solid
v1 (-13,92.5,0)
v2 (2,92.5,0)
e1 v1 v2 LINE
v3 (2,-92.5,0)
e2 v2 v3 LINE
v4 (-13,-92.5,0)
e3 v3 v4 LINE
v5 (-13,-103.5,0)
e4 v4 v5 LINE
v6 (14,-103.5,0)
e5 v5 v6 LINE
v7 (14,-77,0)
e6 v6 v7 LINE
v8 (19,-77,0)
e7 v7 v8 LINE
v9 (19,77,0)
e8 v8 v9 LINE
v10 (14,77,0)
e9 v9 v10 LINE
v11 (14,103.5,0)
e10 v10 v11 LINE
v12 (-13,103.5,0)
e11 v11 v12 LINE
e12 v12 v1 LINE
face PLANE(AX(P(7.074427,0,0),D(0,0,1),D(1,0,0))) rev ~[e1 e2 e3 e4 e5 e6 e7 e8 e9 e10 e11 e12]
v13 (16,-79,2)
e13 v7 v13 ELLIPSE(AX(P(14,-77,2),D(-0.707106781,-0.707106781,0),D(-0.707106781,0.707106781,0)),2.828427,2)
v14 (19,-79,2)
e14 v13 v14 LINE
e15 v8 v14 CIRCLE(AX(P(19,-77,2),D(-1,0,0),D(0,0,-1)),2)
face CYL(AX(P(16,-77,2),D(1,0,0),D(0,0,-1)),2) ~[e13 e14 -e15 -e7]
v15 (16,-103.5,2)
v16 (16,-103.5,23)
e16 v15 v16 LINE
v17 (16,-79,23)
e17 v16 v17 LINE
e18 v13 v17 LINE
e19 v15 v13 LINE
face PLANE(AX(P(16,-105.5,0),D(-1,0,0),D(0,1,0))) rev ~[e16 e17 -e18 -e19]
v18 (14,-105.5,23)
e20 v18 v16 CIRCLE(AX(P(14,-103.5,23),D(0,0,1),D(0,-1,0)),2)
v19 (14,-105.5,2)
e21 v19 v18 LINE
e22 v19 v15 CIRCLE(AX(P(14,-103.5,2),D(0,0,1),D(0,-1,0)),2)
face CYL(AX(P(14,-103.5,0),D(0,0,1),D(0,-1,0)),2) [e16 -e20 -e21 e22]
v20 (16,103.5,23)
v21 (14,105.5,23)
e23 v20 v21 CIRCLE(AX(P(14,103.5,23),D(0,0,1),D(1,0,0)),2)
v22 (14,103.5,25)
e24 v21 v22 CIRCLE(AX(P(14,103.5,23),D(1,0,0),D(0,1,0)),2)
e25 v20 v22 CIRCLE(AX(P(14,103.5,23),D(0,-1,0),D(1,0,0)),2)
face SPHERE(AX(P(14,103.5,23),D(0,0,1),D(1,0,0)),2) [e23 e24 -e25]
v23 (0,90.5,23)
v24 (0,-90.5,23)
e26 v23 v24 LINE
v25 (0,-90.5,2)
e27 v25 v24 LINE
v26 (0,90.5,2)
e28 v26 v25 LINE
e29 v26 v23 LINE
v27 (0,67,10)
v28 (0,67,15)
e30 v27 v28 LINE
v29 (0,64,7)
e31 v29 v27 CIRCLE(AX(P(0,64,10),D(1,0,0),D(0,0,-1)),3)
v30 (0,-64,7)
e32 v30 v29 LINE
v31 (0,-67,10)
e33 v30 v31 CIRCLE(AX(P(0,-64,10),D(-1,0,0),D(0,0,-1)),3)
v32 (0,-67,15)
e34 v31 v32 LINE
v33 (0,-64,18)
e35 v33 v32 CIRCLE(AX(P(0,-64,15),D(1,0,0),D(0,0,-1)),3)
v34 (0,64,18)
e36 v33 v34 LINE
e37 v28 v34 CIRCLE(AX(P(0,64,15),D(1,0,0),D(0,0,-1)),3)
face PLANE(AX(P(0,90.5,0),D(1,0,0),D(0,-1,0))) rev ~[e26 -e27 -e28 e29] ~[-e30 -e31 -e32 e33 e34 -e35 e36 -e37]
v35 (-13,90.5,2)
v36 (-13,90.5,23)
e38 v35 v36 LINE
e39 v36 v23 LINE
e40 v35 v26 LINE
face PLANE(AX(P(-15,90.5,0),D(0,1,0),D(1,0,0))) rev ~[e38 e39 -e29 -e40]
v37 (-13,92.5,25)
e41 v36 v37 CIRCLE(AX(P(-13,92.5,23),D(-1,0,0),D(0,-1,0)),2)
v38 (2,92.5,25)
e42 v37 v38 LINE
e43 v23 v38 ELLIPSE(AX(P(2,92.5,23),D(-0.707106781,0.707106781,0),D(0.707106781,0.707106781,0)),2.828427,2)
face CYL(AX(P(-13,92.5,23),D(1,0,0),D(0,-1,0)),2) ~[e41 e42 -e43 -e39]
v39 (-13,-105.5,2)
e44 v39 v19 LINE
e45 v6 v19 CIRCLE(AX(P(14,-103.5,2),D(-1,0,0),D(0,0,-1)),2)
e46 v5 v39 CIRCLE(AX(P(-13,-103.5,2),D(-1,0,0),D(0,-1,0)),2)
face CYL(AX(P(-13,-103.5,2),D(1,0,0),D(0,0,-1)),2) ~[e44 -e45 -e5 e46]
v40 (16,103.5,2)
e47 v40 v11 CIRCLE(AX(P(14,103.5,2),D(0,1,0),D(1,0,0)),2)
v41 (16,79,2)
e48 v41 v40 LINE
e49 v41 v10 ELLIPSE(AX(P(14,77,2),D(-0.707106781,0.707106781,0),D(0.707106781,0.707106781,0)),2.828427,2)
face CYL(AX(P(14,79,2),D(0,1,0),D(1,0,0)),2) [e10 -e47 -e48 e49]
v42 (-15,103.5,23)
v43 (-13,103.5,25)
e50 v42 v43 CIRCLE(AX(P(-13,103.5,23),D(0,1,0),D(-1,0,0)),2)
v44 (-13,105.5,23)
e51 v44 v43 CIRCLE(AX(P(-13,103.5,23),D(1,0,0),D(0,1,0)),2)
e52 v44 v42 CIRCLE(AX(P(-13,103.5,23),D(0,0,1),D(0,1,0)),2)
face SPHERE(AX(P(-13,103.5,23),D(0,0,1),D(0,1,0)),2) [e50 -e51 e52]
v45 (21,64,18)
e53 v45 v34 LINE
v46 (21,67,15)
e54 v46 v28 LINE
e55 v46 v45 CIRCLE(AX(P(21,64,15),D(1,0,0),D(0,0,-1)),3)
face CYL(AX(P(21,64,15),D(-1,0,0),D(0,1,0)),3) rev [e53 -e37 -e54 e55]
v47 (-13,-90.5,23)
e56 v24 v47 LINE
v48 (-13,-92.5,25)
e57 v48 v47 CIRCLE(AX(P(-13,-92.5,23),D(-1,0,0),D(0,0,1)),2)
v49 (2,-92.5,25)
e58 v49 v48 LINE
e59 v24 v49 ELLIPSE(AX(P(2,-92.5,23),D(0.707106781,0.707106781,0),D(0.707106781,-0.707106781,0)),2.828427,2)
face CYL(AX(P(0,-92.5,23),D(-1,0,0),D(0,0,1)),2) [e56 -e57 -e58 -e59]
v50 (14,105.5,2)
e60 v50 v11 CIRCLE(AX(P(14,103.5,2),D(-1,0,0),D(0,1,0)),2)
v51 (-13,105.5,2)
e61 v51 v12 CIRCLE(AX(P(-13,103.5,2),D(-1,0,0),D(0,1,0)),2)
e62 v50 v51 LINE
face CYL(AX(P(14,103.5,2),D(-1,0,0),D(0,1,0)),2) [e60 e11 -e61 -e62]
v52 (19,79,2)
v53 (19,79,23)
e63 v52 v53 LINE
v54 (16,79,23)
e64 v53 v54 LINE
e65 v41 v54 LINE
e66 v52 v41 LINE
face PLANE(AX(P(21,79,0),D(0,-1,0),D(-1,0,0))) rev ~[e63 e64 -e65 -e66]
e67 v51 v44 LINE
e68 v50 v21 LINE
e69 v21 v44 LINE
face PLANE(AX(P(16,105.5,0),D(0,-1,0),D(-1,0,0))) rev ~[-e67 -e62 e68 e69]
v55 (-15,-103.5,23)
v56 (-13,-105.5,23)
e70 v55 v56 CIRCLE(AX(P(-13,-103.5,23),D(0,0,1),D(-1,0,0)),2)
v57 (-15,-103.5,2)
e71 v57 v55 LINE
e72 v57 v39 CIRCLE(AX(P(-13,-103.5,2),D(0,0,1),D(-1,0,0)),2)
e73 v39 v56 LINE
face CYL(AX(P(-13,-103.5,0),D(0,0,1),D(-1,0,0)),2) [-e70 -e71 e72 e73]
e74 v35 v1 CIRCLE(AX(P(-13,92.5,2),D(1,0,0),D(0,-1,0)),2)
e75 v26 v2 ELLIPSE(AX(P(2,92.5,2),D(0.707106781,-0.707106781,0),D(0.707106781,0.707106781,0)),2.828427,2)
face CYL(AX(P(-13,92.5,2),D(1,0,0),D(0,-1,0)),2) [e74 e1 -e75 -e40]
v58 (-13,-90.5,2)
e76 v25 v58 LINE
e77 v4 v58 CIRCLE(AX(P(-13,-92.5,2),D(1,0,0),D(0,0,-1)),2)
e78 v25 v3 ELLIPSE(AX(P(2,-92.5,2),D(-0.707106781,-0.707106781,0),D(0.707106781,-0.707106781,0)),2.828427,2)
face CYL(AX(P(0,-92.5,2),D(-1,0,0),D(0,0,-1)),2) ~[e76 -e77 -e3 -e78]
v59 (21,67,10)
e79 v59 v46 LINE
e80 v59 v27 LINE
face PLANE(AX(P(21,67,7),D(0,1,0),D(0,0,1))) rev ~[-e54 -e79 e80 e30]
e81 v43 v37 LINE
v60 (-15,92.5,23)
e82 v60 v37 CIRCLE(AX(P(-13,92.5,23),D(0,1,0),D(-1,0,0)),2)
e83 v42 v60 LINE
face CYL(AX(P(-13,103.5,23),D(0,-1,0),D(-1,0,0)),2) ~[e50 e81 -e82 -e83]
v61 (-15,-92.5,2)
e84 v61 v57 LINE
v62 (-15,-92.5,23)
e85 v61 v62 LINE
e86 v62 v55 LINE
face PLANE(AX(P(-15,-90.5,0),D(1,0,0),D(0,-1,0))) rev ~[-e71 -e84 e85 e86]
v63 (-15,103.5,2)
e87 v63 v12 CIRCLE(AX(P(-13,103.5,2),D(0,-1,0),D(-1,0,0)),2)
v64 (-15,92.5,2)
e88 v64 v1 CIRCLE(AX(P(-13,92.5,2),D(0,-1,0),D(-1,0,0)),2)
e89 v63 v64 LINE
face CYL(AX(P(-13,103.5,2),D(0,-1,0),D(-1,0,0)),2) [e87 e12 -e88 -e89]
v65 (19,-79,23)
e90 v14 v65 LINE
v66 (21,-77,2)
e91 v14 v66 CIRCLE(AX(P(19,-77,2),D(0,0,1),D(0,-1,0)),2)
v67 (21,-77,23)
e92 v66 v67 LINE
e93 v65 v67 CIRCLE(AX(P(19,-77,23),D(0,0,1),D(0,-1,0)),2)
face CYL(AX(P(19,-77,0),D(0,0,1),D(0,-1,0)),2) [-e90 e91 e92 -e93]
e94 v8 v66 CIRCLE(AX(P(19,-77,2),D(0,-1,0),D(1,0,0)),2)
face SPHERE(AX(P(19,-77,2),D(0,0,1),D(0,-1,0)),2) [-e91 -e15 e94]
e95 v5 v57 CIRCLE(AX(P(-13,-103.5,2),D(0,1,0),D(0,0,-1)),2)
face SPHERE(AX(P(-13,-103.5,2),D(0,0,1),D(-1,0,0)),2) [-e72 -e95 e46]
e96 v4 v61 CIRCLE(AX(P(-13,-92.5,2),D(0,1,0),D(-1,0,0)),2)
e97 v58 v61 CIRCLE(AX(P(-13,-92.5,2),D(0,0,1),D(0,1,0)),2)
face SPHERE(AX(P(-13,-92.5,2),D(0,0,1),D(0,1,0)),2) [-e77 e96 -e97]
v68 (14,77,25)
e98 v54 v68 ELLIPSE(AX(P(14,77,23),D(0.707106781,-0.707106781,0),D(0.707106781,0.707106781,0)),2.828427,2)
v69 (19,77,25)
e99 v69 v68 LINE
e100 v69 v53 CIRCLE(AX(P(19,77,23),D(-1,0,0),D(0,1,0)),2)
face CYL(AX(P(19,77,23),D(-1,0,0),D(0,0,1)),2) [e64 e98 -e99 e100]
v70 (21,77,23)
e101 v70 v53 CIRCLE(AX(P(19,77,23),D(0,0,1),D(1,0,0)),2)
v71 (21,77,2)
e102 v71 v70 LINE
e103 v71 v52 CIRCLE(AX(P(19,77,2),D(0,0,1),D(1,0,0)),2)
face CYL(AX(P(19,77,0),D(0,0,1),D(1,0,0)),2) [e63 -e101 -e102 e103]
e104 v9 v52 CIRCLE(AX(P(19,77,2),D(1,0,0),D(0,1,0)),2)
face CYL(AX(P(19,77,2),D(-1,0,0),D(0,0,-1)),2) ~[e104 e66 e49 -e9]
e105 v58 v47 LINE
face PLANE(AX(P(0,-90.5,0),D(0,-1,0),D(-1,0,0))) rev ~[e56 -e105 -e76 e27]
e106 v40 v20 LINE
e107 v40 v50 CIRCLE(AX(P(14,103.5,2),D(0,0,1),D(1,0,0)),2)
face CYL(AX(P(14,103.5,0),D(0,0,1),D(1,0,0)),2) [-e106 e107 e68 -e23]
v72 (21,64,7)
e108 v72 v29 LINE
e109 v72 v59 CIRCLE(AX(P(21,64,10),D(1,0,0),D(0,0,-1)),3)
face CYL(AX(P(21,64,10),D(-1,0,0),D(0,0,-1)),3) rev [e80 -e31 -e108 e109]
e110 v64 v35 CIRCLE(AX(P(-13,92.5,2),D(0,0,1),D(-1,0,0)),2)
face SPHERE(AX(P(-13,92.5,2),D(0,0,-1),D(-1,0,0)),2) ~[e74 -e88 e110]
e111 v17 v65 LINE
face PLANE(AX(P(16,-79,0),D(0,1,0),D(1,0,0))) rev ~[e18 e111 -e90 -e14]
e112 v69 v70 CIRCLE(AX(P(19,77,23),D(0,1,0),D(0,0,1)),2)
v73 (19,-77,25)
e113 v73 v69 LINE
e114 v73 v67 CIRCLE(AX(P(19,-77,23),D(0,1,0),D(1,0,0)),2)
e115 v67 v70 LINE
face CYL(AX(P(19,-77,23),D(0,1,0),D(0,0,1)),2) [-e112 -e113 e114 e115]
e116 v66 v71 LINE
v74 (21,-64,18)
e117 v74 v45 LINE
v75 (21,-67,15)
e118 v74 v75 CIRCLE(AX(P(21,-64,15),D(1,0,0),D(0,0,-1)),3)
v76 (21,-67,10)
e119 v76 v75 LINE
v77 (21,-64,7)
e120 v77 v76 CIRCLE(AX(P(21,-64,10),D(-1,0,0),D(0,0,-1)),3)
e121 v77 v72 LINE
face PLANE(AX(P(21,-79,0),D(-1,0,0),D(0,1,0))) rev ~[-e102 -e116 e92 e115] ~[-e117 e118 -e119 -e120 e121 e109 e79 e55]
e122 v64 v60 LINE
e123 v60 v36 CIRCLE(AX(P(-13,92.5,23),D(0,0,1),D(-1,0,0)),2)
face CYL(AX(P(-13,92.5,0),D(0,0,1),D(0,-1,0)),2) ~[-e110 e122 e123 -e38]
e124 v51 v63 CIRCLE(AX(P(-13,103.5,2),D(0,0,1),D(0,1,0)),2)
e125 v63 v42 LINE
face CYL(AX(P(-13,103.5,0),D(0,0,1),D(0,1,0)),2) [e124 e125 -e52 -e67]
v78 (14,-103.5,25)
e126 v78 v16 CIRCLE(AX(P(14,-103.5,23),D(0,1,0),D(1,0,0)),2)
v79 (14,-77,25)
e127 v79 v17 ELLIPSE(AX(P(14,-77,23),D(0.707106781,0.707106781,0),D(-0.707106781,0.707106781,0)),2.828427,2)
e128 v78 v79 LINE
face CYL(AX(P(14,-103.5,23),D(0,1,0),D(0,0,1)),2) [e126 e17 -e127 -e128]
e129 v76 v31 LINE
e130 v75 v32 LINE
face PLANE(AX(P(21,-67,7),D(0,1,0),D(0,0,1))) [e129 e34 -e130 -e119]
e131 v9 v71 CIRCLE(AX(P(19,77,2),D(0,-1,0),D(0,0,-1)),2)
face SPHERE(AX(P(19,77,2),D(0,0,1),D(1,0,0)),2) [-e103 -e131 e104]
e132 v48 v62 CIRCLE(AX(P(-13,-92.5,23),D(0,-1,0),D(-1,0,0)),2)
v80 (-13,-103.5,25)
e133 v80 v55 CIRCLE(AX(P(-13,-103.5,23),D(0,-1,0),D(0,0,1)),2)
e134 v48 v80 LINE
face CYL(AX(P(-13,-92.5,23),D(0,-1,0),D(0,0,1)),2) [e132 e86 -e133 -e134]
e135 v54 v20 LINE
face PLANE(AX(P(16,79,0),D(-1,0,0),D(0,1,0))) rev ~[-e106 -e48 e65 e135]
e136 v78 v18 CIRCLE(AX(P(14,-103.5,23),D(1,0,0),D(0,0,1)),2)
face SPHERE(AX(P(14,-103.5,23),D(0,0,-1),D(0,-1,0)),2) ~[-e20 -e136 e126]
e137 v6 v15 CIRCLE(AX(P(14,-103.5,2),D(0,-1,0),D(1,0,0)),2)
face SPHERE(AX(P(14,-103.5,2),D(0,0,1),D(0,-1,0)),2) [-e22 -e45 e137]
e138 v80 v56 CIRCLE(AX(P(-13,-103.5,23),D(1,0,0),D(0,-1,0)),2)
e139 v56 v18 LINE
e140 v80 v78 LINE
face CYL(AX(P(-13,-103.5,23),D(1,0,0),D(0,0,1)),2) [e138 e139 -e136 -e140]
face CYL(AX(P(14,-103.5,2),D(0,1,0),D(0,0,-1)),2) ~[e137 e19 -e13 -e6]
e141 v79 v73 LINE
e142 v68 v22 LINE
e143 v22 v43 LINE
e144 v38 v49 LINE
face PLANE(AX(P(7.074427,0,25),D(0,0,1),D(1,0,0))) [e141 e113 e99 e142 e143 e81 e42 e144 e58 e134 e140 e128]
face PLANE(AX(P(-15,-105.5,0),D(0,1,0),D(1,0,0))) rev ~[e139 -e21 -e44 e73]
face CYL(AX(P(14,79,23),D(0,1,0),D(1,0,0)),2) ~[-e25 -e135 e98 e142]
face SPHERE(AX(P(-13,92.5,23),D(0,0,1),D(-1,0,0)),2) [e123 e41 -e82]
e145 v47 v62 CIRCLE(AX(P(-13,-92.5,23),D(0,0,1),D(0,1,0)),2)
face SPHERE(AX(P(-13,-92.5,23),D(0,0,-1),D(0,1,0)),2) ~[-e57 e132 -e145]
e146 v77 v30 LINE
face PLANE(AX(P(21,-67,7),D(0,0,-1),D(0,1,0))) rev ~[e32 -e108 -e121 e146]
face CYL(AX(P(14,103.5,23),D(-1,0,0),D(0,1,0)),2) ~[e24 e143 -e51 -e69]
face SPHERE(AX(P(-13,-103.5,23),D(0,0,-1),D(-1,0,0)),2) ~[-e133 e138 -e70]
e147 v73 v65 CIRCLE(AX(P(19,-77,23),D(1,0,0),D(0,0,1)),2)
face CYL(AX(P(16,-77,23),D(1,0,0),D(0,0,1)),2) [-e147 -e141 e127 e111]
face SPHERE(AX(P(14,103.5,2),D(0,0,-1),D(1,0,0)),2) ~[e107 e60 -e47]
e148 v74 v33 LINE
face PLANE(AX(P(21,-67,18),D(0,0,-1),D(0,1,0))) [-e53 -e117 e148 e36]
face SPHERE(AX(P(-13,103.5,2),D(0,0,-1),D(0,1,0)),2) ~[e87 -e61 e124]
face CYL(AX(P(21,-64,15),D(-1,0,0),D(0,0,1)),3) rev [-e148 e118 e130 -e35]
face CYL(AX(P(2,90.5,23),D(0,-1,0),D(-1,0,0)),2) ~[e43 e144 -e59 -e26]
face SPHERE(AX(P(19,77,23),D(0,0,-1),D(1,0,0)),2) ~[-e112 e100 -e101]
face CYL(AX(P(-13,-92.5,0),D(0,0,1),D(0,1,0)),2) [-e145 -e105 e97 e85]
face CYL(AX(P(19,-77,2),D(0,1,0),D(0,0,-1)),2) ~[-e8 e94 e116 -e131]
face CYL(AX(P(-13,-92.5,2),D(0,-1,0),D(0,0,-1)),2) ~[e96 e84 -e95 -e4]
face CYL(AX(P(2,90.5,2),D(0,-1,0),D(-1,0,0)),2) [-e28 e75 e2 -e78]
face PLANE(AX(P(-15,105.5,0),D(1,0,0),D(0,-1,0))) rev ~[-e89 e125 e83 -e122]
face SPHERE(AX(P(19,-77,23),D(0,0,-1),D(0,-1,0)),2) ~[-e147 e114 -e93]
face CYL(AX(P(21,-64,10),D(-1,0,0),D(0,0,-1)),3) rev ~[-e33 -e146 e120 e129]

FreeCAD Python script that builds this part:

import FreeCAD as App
import Part
import Sketcher
from FreeCAD import Vector
Q = App.Units.Quantity


def edges_at(feature, points):
    """Names of the edges that pass closest to the given points."""
    edges = feature.Shape.Edges
    near = lambda p: min(range(len(edges)), key=lambda i: edges[i].distToShape(Part.Vertex(*p))[0])
    return sorted({f"Edge{near(p) + 1}" for p in points})

doc = App.newDocument("Part")
body = doc.addObject("PartDesign::Body", "Body")

sketch1 = body.newObject("Sketcher::SketchObject", "Sketch")
sketch1.AttachmentSupport = (doc.getObject("XY_Plane"), [""])
sketch1.MapMode = "FlatFace"
sketch1.addGeometry([
    Part.LineSegment(Vector(-15, 90, 0), Vector(0, 90, 0)),
    Part.LineSegment(Vector(0, 90, 0), Vector(0, -90, 0)),
    Part.LineSegment(Vector(0, -90, 0), Vector(-15, -90, 0)),
    Part.LineSegment(Vector(-15, -90, 0), Vector(-15, -106, 0)),
    Part.LineSegment(Vector(-15, -106, 0), Vector(16, -106, 0)),
    Part.LineSegment(Vector(16, -106, 0), Vector(16, -79, 0)),
    Part.LineSegment(Vector(16, -79, 0), Vector(21, -79, 0)),
    Part.LineSegment(Vector(21, -79, 0), Vector(21, 79, 0)),
    Part.LineSegment(Vector(21, 79, 0), Vector(16, 79, 0)),
    Part.LineSegment(Vector(16, 79, 0), Vector(16, 106, 0)),
    Part.LineSegment(Vector(16, 106, 0), Vector(-15, 106, 0)),
    Part.LineSegment(Vector(-15, 106, 0), Vector(-15, 90, 0)),
], False)
sketch1.addConstraint([
    Sketcher.Constraint("Coincident", 0, 2, 1, 1),
    Sketcher.Constraint("Coincident", 1, 2, 2, 1),
    Sketcher.Constraint("Coincident", 2, 2, 3, 1),
    Sketcher.Constraint("Coincident", 3, 2, 4, 1),
    Sketcher.Constraint("Coincident", 4, 2, 5, 1),
    Sketcher.Constraint("Coincident", 5, 2, 6, 1),
    Sketcher.Constraint("Coincident", 6, 2, 7, 1),
    Sketcher.Constraint("Coincident", 7, 2, 8, 1),
    Sketcher.Constraint("Coincident", 8, 2, 9, 1),
    Sketcher.Constraint("Coincident", 9, 2, 10, 1),
    Sketcher.Constraint("Coincident", 10, 2, 11, 1),
    Sketcher.Constraint("Coincident", 11, 2, 0, 1),
    Sketcher.Constraint("Horizontal", 0),
    Sketcher.Constraint("Vertical", 1),
    Sketcher.Constraint("Horizontal", 2),
    Sketcher.Constraint("Vertical", 3),
    Sketcher.Constraint("Horizontal", 4),
    Sketcher.Constraint("Vertical", 5),
    Sketcher.Constraint("Horizontal", 6),
    Sketcher.Constraint("Vertical", 7),
    Sketcher.Constraint("Horizontal", 8),
    Sketcher.Constraint("Vertical", 9),
    Sketcher.Constraint("Horizontal", 10),
    Sketcher.Constraint("Vertical", 11),
    Sketcher.Constraint("Symmetric", 0, 2, 1, 2, -1, 1),
    Sketcher.Constraint("Symmetric", 5, 2, 8, 2, -1),
    Sketcher.Constraint("Symmetric", 3, 2, 10, 2, -1),
    Sketcher.Constraint("Equal", 2, 3),
    Sketcher.Constraint("DistanceX", 0, 1, 0, 2, Q("15 mm")),
    Sketcher.Constraint("DistanceX", 4, 1, 4, 2, Q("31 mm")),
    Sketcher.Constraint("DistanceX", 6, 1, 6, 2, Q("5 mm")),
    Sketcher.Constraint("DistanceY", 1, 2, 1, 1, Q("181 mm")),
    Sketcher.Constraint("DistanceY", 7, 1, 7, 2, Q("158 mm")),
])
pad1 = body.newObject("PartDesign::Pad", "Pad")
pad1.Profile = sketch1
pad1.Length = 25
doc.recompute()

fillet = body.newObject("PartDesign::Fillet", "Fillet")
fillet.Base = (pad1, edges_at(pad1, [
    (-15, -105.5, 12.5),
    (-15, 105.5, 12.5),
    (-15, 90.5, 12.5),
    (-15, -90.5, 12.5),
    (16, -105.5, 12.5),
    (21, -79, 12.5),
    (21, 79, 12.5),
    (16, 105.5, 12.5),
]))
fillet.Radius = 2

sketch2 = body.newObject("Sketcher::SketchObject", "Sketch001")
sketch2.AttachmentSupport = (doc.getObject("YZ_Plane"), [""])
sketch2.MapMode = "FlatFace"
sketch2.AttachmentOffset = App.Placement(Vector(0, 0, 21), App.Rotation())
sketch2.addGeometry([
    Part.LineSegment(Vector(-67, 18, 0), Vector(-67, 7, 0)),
    Part.LineSegment(Vector(-67, 7, 0), Vector(67, 7, 0)),
    Part.LineSegment(Vector(67, 7, 0), Vector(67, 18, 0)),
    Part.LineSegment(Vector(67, 18, 0), Vector(-67, 18, 0)),
], False)
sketch2.addConstraint([
    Sketcher.Constraint("Coincident", 0, 2, 1, 1),
    Sketcher.Constraint("Coincident", 1, 2, 2, 1),
    Sketcher.Constraint("Coincident", 2, 2, 3, 1),
    Sketcher.Constraint("Coincident", 3, 2, 0, 1),
    Sketcher.Constraint("Vertical", 0),
    Sketcher.Constraint("Horizontal", 1),
    Sketcher.Constraint("Vertical", 2),
    Sketcher.Constraint("Horizontal", 3),
    Sketcher.Constraint("DistanceX", 1, 1, 1, 2, Q("134 mm")),
    Sketcher.Constraint("DistanceY", 0, 2, 0, 1, Q("11 mm")),
    Sketcher.Constraint("DistanceX", 0, 2, -1, 1, Q("67 mm")),
    Sketcher.Constraint("DistanceY", -1, 1, 0, 2, Q("7 mm")),
])
pocket1 = body.newObject("PartDesign::Pocket", "Pocket")
pocket1.Profile = sketch2
pocket1.Length = 25
doc.recompute()

fillet2 = body.newObject("PartDesign::Fillet", "Fillet001")
fillet2.Base = (pocket1, edges_at(pocket1, [
    (10.5, -67, 7),
    (10.5, 67, 18),
    (10.5, 67, 7),
    (10.5, -67, 18),
]))
fillet2.Radius = 3
doc.recompute()

fillet3 = body.newObject("PartDesign::Fillet", "Fillet002")
fillet3.Base = (fillet2, edges_at(fillet2, [
    (-6.5, 90.5, 25),
    (-14.414, 91.086, 25),
    (0, 0, 25),
    (-15, 98, 25),
    (-6.5, -90.5, 25),
    (-14.414, 104.914, 25),
    (-14.414, -91.086, 25),
    (0.5, 105.5, 25),
    (-15, -98, 25),
    (15.414, 104.914, 25),
    (-14.414, -104.914, 25),
    (16, 91.25, 25),
    (0.5, -105.5, 25),
    (17.5, 79, 25),
    (15.414, -104.914, 25),
    (20.414, 78.414, 25),
    (16, -91.25, 25),
    (21, 0, 25),
    (17.5, -79, 25),
    (20.414, -78.414, 25),
    (-6.5, 90.5, 0),
    (-14.414, 91.086, 0),
    (0, 0, 0),
    (-15, 98, 0),
    (-6.5, -90.5, 0),
    (-14.414, 104.914, 0),
    (-14.414, -91.086, 0),
    (0.5, 105.5, 0),
    (-15, -98, 0),
    (15.414, 104.914, 0),
    (-14.414, -104.914, 0),
    (16, 91.25, 0),
    (0.5, -105.5, 0),
    (17.5, 79, 0),
    (15.414, -104.914, 0),
    (20.414, 78.414, 0),
    (16, -91.25, 0),
    (21, 0, 0),
    (17.5, -79, 0),
    (20.414, -78.414, 0),
]))
fillet3.Radius = 2

doc.recompute()
